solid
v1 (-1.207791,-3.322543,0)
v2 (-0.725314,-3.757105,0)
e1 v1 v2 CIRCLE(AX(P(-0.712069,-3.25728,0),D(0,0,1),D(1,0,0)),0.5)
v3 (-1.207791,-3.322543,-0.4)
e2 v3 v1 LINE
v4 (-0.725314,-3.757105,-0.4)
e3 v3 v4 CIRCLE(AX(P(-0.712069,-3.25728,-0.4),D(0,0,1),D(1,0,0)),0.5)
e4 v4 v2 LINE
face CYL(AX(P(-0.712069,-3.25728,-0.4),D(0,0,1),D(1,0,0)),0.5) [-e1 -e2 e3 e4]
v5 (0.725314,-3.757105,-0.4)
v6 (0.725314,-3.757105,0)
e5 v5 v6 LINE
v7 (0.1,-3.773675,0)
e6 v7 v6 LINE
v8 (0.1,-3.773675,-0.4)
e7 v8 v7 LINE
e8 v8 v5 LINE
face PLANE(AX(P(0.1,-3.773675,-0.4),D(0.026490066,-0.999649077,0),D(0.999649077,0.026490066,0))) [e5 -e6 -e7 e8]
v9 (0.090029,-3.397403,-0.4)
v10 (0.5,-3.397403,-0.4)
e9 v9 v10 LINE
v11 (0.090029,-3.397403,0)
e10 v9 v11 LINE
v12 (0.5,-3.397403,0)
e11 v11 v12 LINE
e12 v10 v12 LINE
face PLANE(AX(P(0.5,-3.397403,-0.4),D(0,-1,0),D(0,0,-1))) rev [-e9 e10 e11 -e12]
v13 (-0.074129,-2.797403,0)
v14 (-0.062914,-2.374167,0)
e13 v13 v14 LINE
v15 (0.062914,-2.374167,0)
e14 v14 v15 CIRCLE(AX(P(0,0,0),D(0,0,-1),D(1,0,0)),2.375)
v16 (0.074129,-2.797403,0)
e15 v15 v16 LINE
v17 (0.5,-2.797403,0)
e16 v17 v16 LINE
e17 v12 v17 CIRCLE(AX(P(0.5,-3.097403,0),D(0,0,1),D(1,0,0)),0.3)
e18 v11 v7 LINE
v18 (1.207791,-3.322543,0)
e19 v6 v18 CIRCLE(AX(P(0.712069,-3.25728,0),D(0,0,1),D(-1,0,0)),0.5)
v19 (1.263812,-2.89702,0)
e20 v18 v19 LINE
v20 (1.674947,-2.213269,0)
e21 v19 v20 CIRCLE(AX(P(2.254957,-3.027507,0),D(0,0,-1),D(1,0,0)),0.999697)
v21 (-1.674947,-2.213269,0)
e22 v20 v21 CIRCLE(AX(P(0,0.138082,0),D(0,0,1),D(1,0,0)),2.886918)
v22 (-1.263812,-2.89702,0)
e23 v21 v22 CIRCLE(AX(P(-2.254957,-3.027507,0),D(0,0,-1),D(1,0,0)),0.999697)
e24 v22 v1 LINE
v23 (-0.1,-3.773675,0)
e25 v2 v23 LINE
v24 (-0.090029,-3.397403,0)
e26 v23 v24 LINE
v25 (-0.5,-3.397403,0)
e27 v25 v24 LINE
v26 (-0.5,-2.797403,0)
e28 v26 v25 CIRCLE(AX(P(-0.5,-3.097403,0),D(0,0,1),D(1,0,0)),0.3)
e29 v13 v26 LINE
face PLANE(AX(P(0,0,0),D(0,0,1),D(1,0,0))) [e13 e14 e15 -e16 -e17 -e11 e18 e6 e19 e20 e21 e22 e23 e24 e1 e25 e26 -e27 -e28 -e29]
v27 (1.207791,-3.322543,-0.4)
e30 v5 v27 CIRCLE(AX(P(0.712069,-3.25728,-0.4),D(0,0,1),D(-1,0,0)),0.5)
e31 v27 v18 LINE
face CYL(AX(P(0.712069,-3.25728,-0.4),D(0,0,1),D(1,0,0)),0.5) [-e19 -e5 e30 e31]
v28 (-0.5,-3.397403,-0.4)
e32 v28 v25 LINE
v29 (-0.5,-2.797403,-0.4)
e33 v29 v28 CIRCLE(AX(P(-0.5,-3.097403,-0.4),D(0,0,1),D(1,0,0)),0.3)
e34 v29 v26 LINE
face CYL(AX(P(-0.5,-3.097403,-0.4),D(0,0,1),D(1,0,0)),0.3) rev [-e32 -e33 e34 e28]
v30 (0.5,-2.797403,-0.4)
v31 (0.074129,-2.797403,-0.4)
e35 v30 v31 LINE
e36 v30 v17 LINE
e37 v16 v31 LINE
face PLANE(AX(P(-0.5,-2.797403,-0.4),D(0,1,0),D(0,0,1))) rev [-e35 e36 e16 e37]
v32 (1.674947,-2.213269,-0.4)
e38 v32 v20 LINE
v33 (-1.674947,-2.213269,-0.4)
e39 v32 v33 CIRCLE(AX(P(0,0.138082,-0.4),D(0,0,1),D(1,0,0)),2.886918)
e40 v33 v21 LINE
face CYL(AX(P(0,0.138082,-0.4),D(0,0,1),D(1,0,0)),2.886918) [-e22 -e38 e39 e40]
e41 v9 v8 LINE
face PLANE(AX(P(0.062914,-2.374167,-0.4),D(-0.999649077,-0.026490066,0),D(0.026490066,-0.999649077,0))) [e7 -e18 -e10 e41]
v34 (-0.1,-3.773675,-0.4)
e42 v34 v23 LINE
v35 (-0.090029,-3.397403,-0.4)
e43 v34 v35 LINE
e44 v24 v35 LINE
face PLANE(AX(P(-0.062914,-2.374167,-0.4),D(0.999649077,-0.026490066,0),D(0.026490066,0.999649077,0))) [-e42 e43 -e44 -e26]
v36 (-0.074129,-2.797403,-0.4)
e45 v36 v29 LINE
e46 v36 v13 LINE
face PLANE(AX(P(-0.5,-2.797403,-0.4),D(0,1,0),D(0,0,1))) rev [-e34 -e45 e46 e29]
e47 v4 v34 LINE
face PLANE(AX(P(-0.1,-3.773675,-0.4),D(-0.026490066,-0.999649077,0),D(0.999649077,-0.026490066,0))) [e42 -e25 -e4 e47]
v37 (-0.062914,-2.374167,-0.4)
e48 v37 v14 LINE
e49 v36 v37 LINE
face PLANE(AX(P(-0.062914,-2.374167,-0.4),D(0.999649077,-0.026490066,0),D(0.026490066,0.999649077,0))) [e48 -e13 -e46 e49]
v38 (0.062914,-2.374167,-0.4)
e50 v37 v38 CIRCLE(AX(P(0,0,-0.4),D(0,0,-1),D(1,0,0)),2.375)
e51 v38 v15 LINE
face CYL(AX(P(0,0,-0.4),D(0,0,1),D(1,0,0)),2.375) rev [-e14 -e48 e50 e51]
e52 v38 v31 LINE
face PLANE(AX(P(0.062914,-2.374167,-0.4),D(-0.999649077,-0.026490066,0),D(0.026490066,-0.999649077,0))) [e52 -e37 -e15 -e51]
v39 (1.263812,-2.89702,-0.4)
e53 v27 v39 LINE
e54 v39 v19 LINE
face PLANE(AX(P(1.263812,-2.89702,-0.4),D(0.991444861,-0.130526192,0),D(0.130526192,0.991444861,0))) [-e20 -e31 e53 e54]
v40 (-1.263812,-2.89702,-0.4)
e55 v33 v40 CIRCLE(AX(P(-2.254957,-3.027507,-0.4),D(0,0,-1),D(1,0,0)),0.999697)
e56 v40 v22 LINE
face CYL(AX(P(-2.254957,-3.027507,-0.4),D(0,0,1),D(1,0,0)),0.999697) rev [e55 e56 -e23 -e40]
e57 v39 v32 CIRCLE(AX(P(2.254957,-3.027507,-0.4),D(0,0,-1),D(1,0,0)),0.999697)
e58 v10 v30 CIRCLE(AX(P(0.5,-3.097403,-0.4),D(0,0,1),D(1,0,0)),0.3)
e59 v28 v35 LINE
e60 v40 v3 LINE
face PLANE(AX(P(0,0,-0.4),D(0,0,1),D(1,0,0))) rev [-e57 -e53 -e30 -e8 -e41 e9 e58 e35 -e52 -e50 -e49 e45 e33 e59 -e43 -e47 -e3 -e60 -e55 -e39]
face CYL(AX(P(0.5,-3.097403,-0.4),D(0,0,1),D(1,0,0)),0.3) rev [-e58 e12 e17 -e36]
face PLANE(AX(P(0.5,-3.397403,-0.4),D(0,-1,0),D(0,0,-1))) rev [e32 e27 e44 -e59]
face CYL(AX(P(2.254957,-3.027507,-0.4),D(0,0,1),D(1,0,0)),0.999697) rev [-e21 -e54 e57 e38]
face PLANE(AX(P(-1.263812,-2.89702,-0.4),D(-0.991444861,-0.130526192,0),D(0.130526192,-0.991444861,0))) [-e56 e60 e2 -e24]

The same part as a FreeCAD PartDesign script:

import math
import FreeCAD as App
import Part
import Sketcher
from FreeCAD import Vector
Q = App.Units.Quantity

doc = App.newDocument("Part")
body = doc.addObject("PartDesign::Body", "Body")

# Sketch on XY plane
sketch1 = body.newObject("Sketcher::SketchObject", "Sketch")
sketch1.AttachmentSupport = (doc.getObject("XY_Plane"), [""])
sketch1.MapMode = "FlatFace"
sketch1.addGeometry([
    Part.LineSegment(Vector(0.06, -2.37, 0), Vector(0.1, -3.77, 0)),  # 0
    Part.LineSegment(Vector(0.1, -3.77, 0), Vector(0.73, -3.76, 0)),  # 1
    Part.ArcOfCircle(Part.Circle(Vector(0.71, -3.26, 0), Vector(0, 0, 1), 0.5), math.radians(-88), math.radians(-7)),  # 2
    Part.LineSegment(Vector(1.21, -3.32, 0), Vector(1.26, -2.9, 0)),  # 3
    Part.ArcOfCircle(Part.Circle(Vector(2.25, -3.03, 0), Vector(0, 0, 1), 1), math.radians(125), math.radians(173)),  # 4
    Part.ArcOfCircle(Part.Circle(Vector(0, 0.14, 0), Vector(0, 0, 1), 2.89), math.radians(-55), math.radians(235)),  # 5
    Part.ArcOfCircle(Part.Circle(Vector(-2.25, -3.03, 0), Vector(0, 0, 1), 1), math.radians(7), math.radians(55)),  # 6
    Part.LineSegment(Vector(-1.26, -2.9, 0), Vector(-1.21, -3.32, 0)),  # 7
    Part.ArcOfCircle(Part.Circle(Vector(-0.71, -3.26, 0), Vector(0, 0, 1), 0.5), math.radians(-173), math.radians(-92)),  # 8
    Part.LineSegment(Vector(-0.73, -3.76, 0), Vector(-0.1, -3.77, 0)),  # 9
    Part.LineSegment(Vector(-0.1, -3.77, 0), Vector(-0.06, -2.37, 0)),  # 10
    Part.ArcOfCircle(Part.Circle(Vector(0, 0, 0), Vector(0, 0, 1), 2.38), math.radians(-88), math.radians(268)),  # 11
    Part.Circle(Vector(-0.5, -3.1, 0), Vector(0, 0, 1), 0.3),  # 12
    Part.Circle(Vector(0.5, -3.1, 0), Vector(0, 0, 1), 0.3),  # 13
], False)
sketch1.addConstraint([
    Sketcher.Constraint("Coincident", 0, 2, 1, 1),
    Sketcher.Constraint("Tangent", 1, 2, 2, 1),
    Sketcher.Constraint("Tangent", 2, 2, 3, 1),
    Sketcher.Constraint("Tangent", 3, 2, 4, 2),
    Sketcher.Constraint("Tangent", 4, 1, 5, 1),
    Sketcher.Constraint("Tangent", 5, 2, 6, 2),
    Sketcher.Constraint("Tangent", 6, 1, 7, 1),
    Sketcher.Constraint("Tangent", 7, 2, 8, 1),
    Sketcher.Constraint("Tangent", 8, 2, 9, 1),
    Sketcher.Constraint("Coincident", 9, 2, 10, 1),
    Sketcher.Constraint("Coincident", 10, 2, 11, 2),
    Sketcher.Constraint("Coincident", 11, 1, 0, 1),
    Sketcher.Constraint("Coincident", 11, 3, -1, 1),
    Sketcher.Constraint("Equal", 4, 6),
    Sketcher.Constraint("Equal", 2, 8),
    Sketcher.Constraint("Equal", 12, 13),
    Sketcher.Constraint("Symmetric", 4, 3, 6, 3, -2),
    Sketcher.Constraint("Symmetric", 2, 3, 8, 3, -2),
    Sketcher.Constraint("Symmetric", 12, 3, 13, 3, -2),
    Sketcher.Constraint("Symmetric", 0, 2, 9, 2, -2),
    Sketcher.Constraint("Perpendicular", 0, 1),
    Sketcher.Constraint("Perpendicular", 9, 10),
    Sketcher.Constraint("Diameter", 12, 0.6),
    Sketcher.Constraint("Radius", 2, 0.5),
    Sketcher.Constraint("Angle", 3, Q("82.5 deg")),
    Sketcher.Constraint("Radius", 11, 2.375),
    Sketcher.Constraint("DistanceX", 12, 3, 13, 3, 1.0),
    Sketcher.Constraint("Distance", 0, 1.4),
    Sketcher.Constraint("DistanceX", -1, 1, 0, 2, 0.1),
    Sketcher.Constraint("Radius", 5, 2.886918),
    Sketcher.Constraint("Radius", 4, 0.999697),
    Sketcher.Constraint("DistanceY", 1, 2, 13, 3, 0.659702),
    Sketcher.Constraint("DistanceX", 1, 2, 3, 2, 0.538499),
    Sketcher.Constraint("DistanceX", 6, 1, 10, 2, 1.200898),
    Sketcher.Constraint("DistanceX", -1, 1, 2, 3, 0.712069),
])
pad1 = body.newObject("PartDesign::Pad", "Pad")
pad1.Profile = sketch1
pad1.Length = 0.4
pad1.Reversed = True

# Sketch on XY plane
sketch2 = body.newObject("Sketcher::SketchObject", "Sketch001")
sketch2.AttachmentSupport = (doc.getObject("XY_Plane"), [""])
sketch2.MapMode = "FlatFace"
sketch2.addGeometry([
    Part.LineSegment(Vector(-0.5, -2.8, 0), Vector(-0.5, -3.4, 0)),
    Part.LineSegment(Vector(-0.5, -3.4, 0), Vector(0.5, -3.4, 0)),
    Part.LineSegment(Vector(0.5, -3.4, 0), Vector(0.5, -2.8, 0)),
    Part.LineSegment(Vector(0.5, -2.8, 0), Vector(-0.5, -2.8, 0)),
], False)
sketch2.addConstraint([
    Sketcher.Constraint("Coincident", 0, 2, 1, 1),
    Sketcher.Constraint("Coincident", 1, 2, 2, 1),
    Sketcher.Constraint("Coincident", 2, 2, 3, 1),
    Sketcher.Constraint("Coincident", 3, 2, 0, 1),
    Sketcher.Constraint("Vertical", 0),
    Sketcher.Constraint("Horizontal", 1),
    Sketcher.Constraint("Vertical", 2),
    Sketcher.Constraint("Horizontal", 3),
    Sketcher.Constraint("DistanceX", 1, 1, 1, 2, 1.0),
    Sketcher.Constraint("DistanceY", 0, 2, 0, 1, 0.6),
    Sketcher.Constraint("DistanceX", 0, 2, -1, 1, 0.5),
    Sketcher.Constraint("DistanceY", 0, 2, -1, 1, 3.397403),
])
pocket1 = body.newObject("PartDesign::Pocket", "Pocket")
pocket1.Profile = sketch2
pocket1.Type = "ThroughAll"

doc.recompute()
